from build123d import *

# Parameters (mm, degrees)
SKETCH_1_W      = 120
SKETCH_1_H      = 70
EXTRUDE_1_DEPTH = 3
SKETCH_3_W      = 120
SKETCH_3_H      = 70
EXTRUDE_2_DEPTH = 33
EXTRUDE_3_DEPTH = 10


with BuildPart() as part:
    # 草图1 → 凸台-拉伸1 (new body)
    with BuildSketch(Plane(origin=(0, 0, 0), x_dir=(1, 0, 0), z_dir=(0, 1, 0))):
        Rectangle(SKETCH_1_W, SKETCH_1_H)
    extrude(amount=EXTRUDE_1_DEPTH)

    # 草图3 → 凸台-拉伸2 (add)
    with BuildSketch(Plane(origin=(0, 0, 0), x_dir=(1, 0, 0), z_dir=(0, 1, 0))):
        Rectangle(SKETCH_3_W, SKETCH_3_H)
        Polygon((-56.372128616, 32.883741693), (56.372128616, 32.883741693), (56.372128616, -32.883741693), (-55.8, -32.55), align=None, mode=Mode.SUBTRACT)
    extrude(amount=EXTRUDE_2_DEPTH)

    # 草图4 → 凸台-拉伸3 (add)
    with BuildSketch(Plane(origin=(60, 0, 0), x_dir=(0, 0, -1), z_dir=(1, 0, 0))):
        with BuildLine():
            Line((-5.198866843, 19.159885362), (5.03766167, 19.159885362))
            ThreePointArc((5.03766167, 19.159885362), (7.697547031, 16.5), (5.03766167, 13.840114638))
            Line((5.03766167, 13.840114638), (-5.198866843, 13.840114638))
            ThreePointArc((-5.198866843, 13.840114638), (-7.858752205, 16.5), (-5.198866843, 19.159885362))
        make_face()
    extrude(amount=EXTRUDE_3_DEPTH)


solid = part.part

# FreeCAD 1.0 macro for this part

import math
import FreeCAD as App
import Part
import Sketcher

V = App.Vector
Q = App.Units.Quantity


def add_polygon(sketch, points):
    """Adds a closed chain of lines whose ends are joined by coincident constraints."""
    first, n = sketch.GeometryCount, len(points)
    for a, b in zip(points, points[1:] + points[:1]):
        sketch.addGeometry(Part.LineSegment(App.Vector(*a, 0), App.Vector(*b, 0)), False)
    for i in range(n):
        sketch.addConstraint(Sketcher.Constraint("Coincident", first + i, 2, first + (i + 1) % n, 1))

doc = App.newDocument("Part")
body = doc.addObject("PartDesign::Body", "Body")

sketch1 = body.newObject("Sketcher::SketchObject", "Sketch")
sketch1.AttachmentSupport = (doc.getObject("XZ_Plane"), [""])
sketch1.MapMode = "FlatFace"
add_polygon(sketch1, [(-60, -35), (-60, 35), (60, 35), (60, -35)])
sketch1.addConstraint(Sketcher.Constraint("Vertical", 0))
sketch1.addConstraint(Sketcher.Constraint("Horizontal", 1))
sketch1.addConstraint(Sketcher.Constraint("Vertical", 2))
sketch1.addConstraint(Sketcher.Constraint("Horizontal", 3))
sketch1.addConstraint(Sketcher.Constraint("Symmetric", 0, 2, 2, 2, -1, 1))
sketch1.addConstraint(Sketcher.Constraint("DistanceX", 1, 1, 1, 2, Q("120 mm")))
sketch1.addConstraint(Sketcher.Constraint("DistanceY", 0, 1, 0, 2, Q("70 mm")))
pad1 = body.newObject("PartDesign::Pad", "Pad")
pad1.Profile = sketch1
pad1.Length = 3
pad1.Reversed = True

sketch2 = body.newObject("Sketcher::SketchObject", "Sketch001")
sketch2.AttachmentSupport = (doc.getObject("XZ_Plane"), [""])
sketch2.MapMode = "FlatFace"
add_polygon(sketch2, [(-60, -35), (-60, 35), (60, 35), (60, -35)])
add_polygon(sketch2, [(-55.8, 32.55), (-56.372129, -32.883742), (56.372129, -32.883742), (56.372129, 32.883742)])
sketch2.addConstraint(Sketcher.Constraint("Vertical", 0))
sketch2.addConstraint(Sketcher.Constraint("Horizontal", 1))
sketch2.addConstraint(Sketcher.Constraint("Vertical", 2))
sketch2.addConstraint(Sketcher.Constraint("Horizontal", 3))
sketch2.addConstraint(Sketcher.Constraint("Horizontal", 5))
sketch2.addConstraint(Sketcher.Constraint("Vertical", 6))
sketch2.addConstraint(Sketcher.Constraint("Symmetric", 0, 2, 2, 2, -1, 1))
sketch2.addConstraint(Sketcher.Constraint("Symmetric", 4, 2, 6, 2, -1, 1))
sketch2.addConstraint(Sketcher.Constraint("DistanceX", 1, 1, 1, 2, Q("120 mm")))
sketch2.addConstraint(Sketcher.Constraint("DistanceY", 0, 1, 0, 2, Q("70 mm")))
sketch2.addConstraint(Sketcher.Constraint("DistanceX", 7, 2, -1, 1, Q("55.8 mm")))
sketch2.addConstraint(Sketcher.Constraint("DistanceY", -1, 1, 7, 2, Q("32.55 mm")))
sketch2.addConstraint(Sketcher.Constraint("DistanceX", 5, 1, 5, 2, Q("112.744257 mm")))
sketch2.addConstraint(Sketcher.Constraint("DistanceY", 6, 1, 6, 2, Q("65.767483 mm")))
pad2 = body.newObject("PartDesign::Pad", "Pad001")
pad2.Profile = sketch2
pad2.Length = 33
pad2.Reversed = True

sketch3 = body.newObject("Sketcher::SketchObject", "Sketch002")
sketch3.AttachmentSupport = (doc.getObject("YZ_Plane"), [""])
sketch3.MapMode = "FlatFace"
sketch3.AttachmentOffset = App.Placement(V(0, 0, 60), App.Rotation())
sketch3.addGeometry(Part.LineSegment(V(19.159885, -5.037662, 0), V(19.159885, 5.198867, 0)), False)
sketch3.addGeometry(Part.ArcOfCircle(Part.Circle(V(16.5, 5.198867, 0), V(0, 0, 1), 2.659885), math.radians(0), math.radians(180)), False)
sketch3.addGeometry(Part.LineSegment(V(13.840115, 5.198867, 0), V(13.840115, -5.037662, 0)), False)
sketch3.addGeometry(Part.ArcOfCircle(Part.Circle(V(16.5, -5.037662, 0), V(0, 0, 1), 2.659885), math.radians(-180), math.radians(0)), False)
sketch3.addConstraint(Sketcher.Constraint("Tangent", 0, 2, 1, 1))
sketch3.addConstraint(Sketcher.Constraint("Tangent", 1, 2, 2, 1))
sketch3.addConstraint(Sketcher.Constraint("Tangent", 2, 2, 3, 1))
sketch3.addConstraint(Sketcher.Constraint("Tangent", 3, 2, 0, 1))
sketch3.addConstraint(Sketcher.Constraint("Vertical", 0))
sketch3.addConstraint(Sketcher.Constraint("Vertical", 2))
sketch3.addConstraint(Sketcher.Constraint("DistanceX", -1, 1, 1, 3, Q("16.5 mm")))
sketch3.addConstraint(Sketcher.Constraint("Radius", 1, Q("2.659885 mm")))
sketch3.addConstraint(Sketcher.Constraint("DistanceY", 0, 1, 0, 2, Q("10.236529 mm")))
sketch3.addConstraint(Sketcher.Constraint("DistanceY", 3, 3, -1, 1, Q("5.037662 mm")))
pad3 = body.newObject("PartDesign::Pad", "Pad002")
pad3.Profile = sketch3
pad3.Length = 10

doc.recompute()
